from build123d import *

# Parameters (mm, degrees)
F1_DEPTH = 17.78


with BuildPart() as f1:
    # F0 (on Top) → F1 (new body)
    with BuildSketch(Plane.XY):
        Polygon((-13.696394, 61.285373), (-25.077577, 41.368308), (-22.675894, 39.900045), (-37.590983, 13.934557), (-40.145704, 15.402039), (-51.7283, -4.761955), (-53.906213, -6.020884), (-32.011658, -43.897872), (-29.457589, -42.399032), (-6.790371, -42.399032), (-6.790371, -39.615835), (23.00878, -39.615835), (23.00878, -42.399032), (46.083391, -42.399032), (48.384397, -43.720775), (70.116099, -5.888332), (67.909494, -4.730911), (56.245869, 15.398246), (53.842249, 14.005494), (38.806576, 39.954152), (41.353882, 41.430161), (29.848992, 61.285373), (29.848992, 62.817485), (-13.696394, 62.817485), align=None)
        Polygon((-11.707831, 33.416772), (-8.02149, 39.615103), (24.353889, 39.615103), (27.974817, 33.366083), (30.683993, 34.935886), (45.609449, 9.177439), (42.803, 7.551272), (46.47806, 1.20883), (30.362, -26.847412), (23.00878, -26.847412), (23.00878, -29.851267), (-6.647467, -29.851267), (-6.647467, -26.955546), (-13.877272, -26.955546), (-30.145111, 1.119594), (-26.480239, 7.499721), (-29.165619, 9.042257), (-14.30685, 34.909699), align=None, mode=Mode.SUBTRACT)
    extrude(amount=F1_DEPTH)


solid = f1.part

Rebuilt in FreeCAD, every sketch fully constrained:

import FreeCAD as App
import Part
import Sketcher
Q = App.Units.Quantity


def add_polygon(sketch, points):
    """Adds a closed chain of lines whose ends are joined by coincident constraints."""
    first, n = sketch.GeometryCount, len(points)
    for a, b in zip(points, points[1:] + points[:1]):
        sketch.addGeometry(Part.LineSegment(App.Vector(*a, 0), App.Vector(*b, 0)), False)
    for i in range(n):
        sketch.addConstraint(Sketcher.Constraint("Coincident", first + i, 2, first + (i + 1) % n, 1))

doc = App.newDocument("Part")
body = doc.addObject("PartDesign::Body", "Body")

# Sketch on XY plane
sketch1 = body.newObject("Sketcher::SketchObject", "Sketch")
sketch1.AttachmentSupport = (doc.getObject("XY_Plane"), [""])
sketch1.MapMode = "FlatFace"
add_polygon(sketch1, [(-13.7, 61.3), (-25.1, 41.4), (-22.7, 39.9), (-37.6, 13.9), (-40.1, 15.4), (-51.7, -4.8), (-53.9, -6), (-32, -43.9), (-29.5, -42.4), (-6.8, -42.4), (-6.8, -39.6), (23, -39.6), (23, -42.4), (46.1, -42.4), (48.4, -43.7), (70.1, -5.9), (67.9, -4.7), (56.2, 15.4), (53.8, 14), (38.8, 40), (41.4, 41.4), (29.8, 61.3), (29.8, 62.8), (-13.7, 62.8)])  # lines 0-23
add_polygon(sketch1, [(-14.3, 34.9), (-11.7, 33.4), (-8, 39.6), (24.4, 39.6), (28, 33.4), (30.7, 34.9), (45.6, 9.2), (42.8, 7.6), (46.5, 1.2), (30.4, -26.8), (23, -26.8), (23, -29.9), (-6.6, -29.9), (-6.6, -27), (-13.9, -27), (-30.1, 1.1), (-26.5, 7.5), (-29.2, 9)])  # lines 24-41
sketch1.addConstraint(Sketcher.Constraint("Horizontal", 8))
sketch1.addConstraint(Sketcher.Constraint("Vertical", 9))
sketch1.addConstraint(Sketcher.Constraint("Horizontal", 10))
sketch1.addConstraint(Sketcher.Constraint("Vertical", 11))
sketch1.addConstraint(Sketcher.Constraint("Horizontal", 12))
sketch1.addConstraint(Sketcher.Constraint("Vertical", 21))
sketch1.addConstraint(Sketcher.Constraint("Horizontal", 22))
sketch1.addConstraint(Sketcher.Constraint("Vertical", 23))
sketch1.addConstraint(Sketcher.Constraint("Horizontal", 26))
sketch1.addConstraint(Sketcher.Constraint("Horizontal", 33))
sketch1.addConstraint(Sketcher.Constraint("Vertical", 34))
sketch1.addConstraint(Sketcher.Constraint("Horizontal", 35))
sketch1.addConstraint(Sketcher.Constraint("Vertical", 36))
sketch1.addConstraint(Sketcher.Constraint("Horizontal", 37))
sketch1.addConstraint(Sketcher.Constraint("Perpendicular", 2, 3))
sketch1.addConstraint(Sketcher.Constraint("Perpendicular", 3, 4))
sketch1.addConstraint(Sketcher.Constraint("Perpendicular", 5, 6))
sketch1.addConstraint(Sketcher.Constraint("Perpendicular", 4, 13))
sketch1.addConstraint(Sketcher.Constraint("Perpendicular", 13, 14))
sketch1.addConstraint(Sketcher.Constraint("Perpendicular", 16, 17))
sketch1.addConstraint(Sketcher.Constraint("Perpendicular", 17, 18))
sketch1.addConstraint(Sketcher.Constraint("Perpendicular", 18, 19))
sketch1.addConstraint(Sketcher.Constraint("Perpendicular", 19, 20))
sketch1.addConstraint(Sketcher.Constraint("Perpendicular", 14, 24))
sketch1.addConstraint(Sketcher.Constraint("Parallel", 20, 27))
sketch1.addConstraint(Sketcher.Constraint("Perpendicular", 27, 28))
sketch1.addConstraint(Sketcher.Constraint("Perpendicular", 28, 29))
sketch1.addConstraint(Sketcher.Constraint("Perpendicular", 29, 30))
sketch1.addConstraint(Sketcher.Constraint("Perpendicular", 30, 31))
sketch1.addConstraint(Sketcher.Constraint("Perpendicular", 24, 32))
sketch1.addConstraint(Sketcher.Constraint("Parallel", 31, 38))
sketch1.addConstraint(Sketcher.Constraint("Parallel", 32, 39))
sketch1.addConstraint(Sketcher.Constraint("Perpendicular", 39, 40))
sketch1.addConstraint(Sketcher.Constraint("Perpendicular", 40, 41))
sketch1.addConstraint(Sketcher.Constraint("Horizontal", 8, 2, 11, 2))
sketch1.addConstraint(Sketcher.Constraint("Horizontal", 20, 2, 23, 2))
sketch1.addConstraint(Sketcher.Constraint("Vertical", 11, 2, 33, 2))
sketch1.addConstraint(Sketcher.Constraint("DistanceY", 9, 2, 4, 2, Q("1.3722 in")))
sketch1.addConstraint(Sketcher.Constraint("Distance", 3, Q("2.946201 mm")))
sketch1.addConstraint(Sketcher.Constraint("DistanceX", 10, 1, 10, 2, Q("29.799151 mm")))
sketch1.addConstraint(Sketcher.Constraint("DistanceX", 12, 1, 12, 2, Q("23.074611 mm")))
sketch1.addConstraint(Sketcher.Constraint("DistanceX", 26, 1, 26, 2, Q("32.375379 mm")))
sketch1.addConstraint(Sketcher.Constraint("DistanceX", 33, 2, 33, 1, Q("7.35322 mm")))
sketch1.addConstraint(Sketcher.Constraint("DistanceY", 21, 1, 21, 2, Q("1.532112 mm")))
sketch1.addConstraint(Sketcher.Constraint("DistanceY", 36, 1, 36, 2, Q("2.895721 mm")))
sketch1.addConstraint(Sketcher.Constraint("DistanceX", 4, 2, -1, 1, Q("51.7283 mm")))
sketch1.addConstraint(Sketcher.Constraint("DistanceX", -1, 1, 14, 2, Q("70.116099 mm")))
sketch1.addConstraint(Sketcher.Constraint("DistanceX", -1, 1, 30, 2, Q("42.803 mm")))
sketch1.addConstraint(Sketcher.Constraint("DistanceX", -1, 1, 32, 2, Q("30.362 mm")))
sketch1.addConstraint(Sketcher.Constraint("DistanceY", -1, 1, 41, 2, Q("34.909699 mm")))
sketch1.addConstraint(Sketcher.Constraint("DistanceY", 4, 2, 1, 2, Q("44.662 mm")))
sketch1.addConstraint(Sketcher.Constraint("DistanceY", 12, 2, 14, 2, Q("36.5107 mm")))
sketch1.addConstraint(Sketcher.Constraint("DistanceX", 1, 2, 22, 2, Q("8.9795 mm")))
sketch1.addConstraint(Sketcher.Constraint("DistanceY", 24, 2, 23, 2, Q("27.868601 mm")))
sketch1.addConstraint(Sketcher.Constraint("DistanceY", 27, 2, 21, 2, Q("29.451402 mm")))
sketch1.addConstraint(Sketcher.Constraint("DistanceX", 20, 2, 28, 2, Q("0.835001 mm")))
sketch1.addConstraint(Sketcher.Constraint("DistanceX", 29, 2, 17, 2, Q("8.2328 mm")))
sketch1.addConstraint(Sketcher.Constraint("DistanceX", 37, 2, 9, 2, Q("7.086901 mm")))
sketch1.addConstraint(Sketcher.Constraint("DistanceY", 40, 2, 2, 2, Q("4.8923 mm")))
sketch1.addConstraint(Sketcher.Constraint("Distance", 1, Q("2.814938 mm")))
sketch1.addConstraint(Sketcher.Constraint("Distance", 2, Q("29.944389 mm")))
sketch1.addConstraint(Sketcher.Constraint("Distance", 18, Q("29.99007 mm")))
sketch1.addConstraint(Sketcher.Constraint("Distance", 19, Q("2.94404 mm")))
sketch1.addConstraint(Sketcher.Constraint("Distance", 20, Q("22.947591 mm")))
sketch1.addConstraint(Sketcher.Constraint("Distance", 28, Q("3.131121 mm")))
sketch1.addConstraint(Sketcher.Constraint("Distance", 41, Q("29.831319 mm")))
sketch1.addConstraint(Sketcher.Constraint("DistanceX", 8, 1, 8, 2, Q("22.667218 mm")))
sketch1.addConstraint(Sketcher.Constraint("DistanceX", 22, 2, 22, 1, Q("43.545386 mm")))
sketch1.addConstraint(Sketcher.Constraint("DistanceX", 35, 2, 35, 1, Q("29.656247 mm")))
sketch1.addConstraint(Sketcher.Constraint("DistanceY", 9, 1, 9, 2, Q("2.783197 mm")))
sketch1.addConstraint(Sketcher.Constraint("DistanceY", 34, 2, 34, 1, Q("3.003855 mm")))
sketch1.addConstraint(Sketcher.Constraint("DistanceY", -1, 1, 3, 2, Q("15.402039 mm")))
sketch1.addConstraint(Sketcher.Constraint("DistanceY", 15, 2, -1, 1, Q("4.730911 mm")))
sketch1.addConstraint(Sketcher.Constraint("DistanceX", -1, 1, 16, 2, Q("56.245869 mm")))
sketch1.addConstraint(Sketcher.Constraint("DistanceX", -1, 1, 17, 2, Q("53.842249 mm")))
sketch1.addConstraint(Sketcher.Constraint("DistanceY", -1, 1, 19, 2, Q("41.430161 mm")))
sketch1.addConstraint(Sketcher.Constraint("DistanceX", 24, 2, -1, 1, Q("11.707831 mm")))
sketch1.addConstraint(Sketcher.Constraint("DistanceX", 25, 2, -1, 1, Q("8.02149 mm")))
sketch1.addConstraint(Sketcher.Constraint("DistanceX", -1, 1, 31, 2, Q("46.47806 mm")))
sketch1.addConstraint(Sketcher.Constraint("DistanceX", 38, 2, -1, 1, Q("30.145111 mm")))
sketch1.addConstraint(Sketcher.Constraint("DistanceY", 2, 2, 0, 2, Q("27.433751 mm")))
sketch1.addConstraint(Sketcher.Constraint("DistanceY", 5, 2, 4, 2, Q("1.258929 mm")))
sketch1.addConstraint(Sketcher.Constraint("DistanceX", 5, 2, 3, 2, Q("13.760509 mm")))
sketch1.addConstraint(Sketcher.Constraint("DistanceX", 4, 2, 6, 2, Q("19.716642 mm")))
pad1 = body.newObject("PartDesign::Pad", "Pad")
pad1.Profile = sketch1
pad1.Length = Q("0.7 in")

doc.recompute()
